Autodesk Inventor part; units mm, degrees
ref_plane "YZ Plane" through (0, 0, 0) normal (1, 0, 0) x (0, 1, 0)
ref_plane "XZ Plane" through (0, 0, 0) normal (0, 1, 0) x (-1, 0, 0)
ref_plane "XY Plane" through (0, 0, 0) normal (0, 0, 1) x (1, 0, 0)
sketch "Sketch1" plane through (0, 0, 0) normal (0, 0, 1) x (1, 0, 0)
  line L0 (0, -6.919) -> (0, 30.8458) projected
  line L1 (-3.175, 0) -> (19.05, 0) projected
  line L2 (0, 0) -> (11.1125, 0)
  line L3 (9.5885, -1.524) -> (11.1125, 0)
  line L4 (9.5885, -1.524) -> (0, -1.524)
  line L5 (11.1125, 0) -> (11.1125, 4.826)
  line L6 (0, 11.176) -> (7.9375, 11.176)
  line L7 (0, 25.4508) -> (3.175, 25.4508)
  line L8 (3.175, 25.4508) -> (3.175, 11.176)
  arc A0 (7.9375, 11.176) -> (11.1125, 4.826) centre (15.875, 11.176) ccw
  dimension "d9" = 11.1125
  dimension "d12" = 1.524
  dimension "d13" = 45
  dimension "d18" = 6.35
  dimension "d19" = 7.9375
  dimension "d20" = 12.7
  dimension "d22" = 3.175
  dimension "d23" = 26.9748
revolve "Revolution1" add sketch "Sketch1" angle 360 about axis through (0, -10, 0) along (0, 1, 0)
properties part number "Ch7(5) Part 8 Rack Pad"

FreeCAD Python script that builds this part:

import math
import FreeCAD as App
import Part
import Sketcher

V = App.Vector
Q = App.Units.Quantity

doc = App.newDocument("Part")
params = doc.addObject("Spreadsheet::Sheet", "Params")
for row, (alias, value) in enumerate([
    ("sketch1_radius", "0.3125 in"),
    ("sketch1_width", "0.125 in"),
    ("sketch1_height", "1.062 in"),
    ("revolution_angle", "360 deg"),
], start=1):
    params.set(f"A{row}", alias)
    params.set(f"B{row}", "=" + value)
    params.setAlias(f"B{row}", alias)

body = doc.addObject("PartDesign::Body", "Body")

sketch1 = body.newObject("Sketcher::SketchObject", "Sketch")
sketch1.AttachmentSupport = (doc.getObject("XY_Plane"), [""])
sketch1.MapMode = "FlatFace"
sketch1.addGeometry([
    Part.LineSegment(V(0, -1.5, 0), V(9.6, -1.5, 0)),
    Part.LineSegment(V(9.6, -1.5, 0), V(11.1, 0, 0)),
    Part.LineSegment(V(11.1, 0, 0), V(11.1, 4.8, 0)),
    Part.ArcOfCircle(Part.Circle(V(15.9, 11.2, 0), V(0, 0, 1), 7.9), math.radians(180), math.radians(233)),
    Part.LineSegment(V(7.9, 11.2, 0), V(3.2, 11.2, 0)),
    Part.LineSegment(V(3.2, 11.2, 0), V(3.2, 25.5, 0)),
    Part.LineSegment(V(3.2, 25.5, 0), V(0, 25.5, 0)),
    Part.LineSegment(V(0, 25.5, 0), V(0, -1.5, 0)),
], False)
sketch1.addConstraint([
    Sketcher.Constraint("Coincident", 0, 2, 1, 1),
    Sketcher.Constraint("Coincident", 1, 2, 2, 1),
    Sketcher.Constraint("Coincident", 2, 2, 3, 2),
    Sketcher.Constraint("Coincident", 3, 1, 4, 1),
    Sketcher.Constraint("Coincident", 4, 2, 5, 1),
    Sketcher.Constraint("Coincident", 5, 2, 6, 1),
    Sketcher.Constraint("Coincident", 6, 2, 7, 1),
    Sketcher.Constraint("Coincident", 7, 2, 0, 1),
    Sketcher.Constraint("Horizontal", 0),
    Sketcher.Constraint("Vertical", 2),
    Sketcher.Constraint("Horizontal", 4),
    Sketcher.Constraint("Vertical", 5),
    Sketcher.Constraint("Horizontal", 6),
    Sketcher.Constraint("Vertical", 7),
    Sketcher.Constraint("PointOnObject", 1, 2, -1),
    Sketcher.Constraint("PointOnObject", 6, 2, -2),
    Sketcher.Constraint("Angle", 1, Q("45 deg")),
    Sketcher.Constraint("Radius", 3, Q("0.3125 in")),
    Sketcher.Constraint("DistanceY", 0, 2, 3, 3, Q("0.5 in")),
    Sketcher.Constraint("DistanceY", 0, 2, 3, 1, Q("0.5 in")),
    Sketcher.Constraint("DistanceX", 4, 2, 3, 3, Q("0.5 in")),
    Sketcher.Constraint("DistanceX", 6, 2, 6, 1, Q("0.125 in")),
    Sketcher.Constraint("DistanceY", 7, 2, 7, 1, Q("1.062 in")),
    Sketcher.Constraint("DistanceY", 0, 2, -1, 1, Q("0.06 in")),
    Sketcher.Constraint("DistanceY", 0, 2, 2, 2, Q("0.25 in")),
])
sketch1.setExpression("Constraints[17]", "Params.sketch1_radius")
sketch1.setExpression("Constraints[21]", "Params.sketch1_width")
sketch1.setExpression("Constraints[22]", "Params.sketch1_height")
revolution = body.newObject("PartDesign::Revolution", "Revolution")
revolution.Profile = sketch1
revolution.ReferenceAxis = (sketch1, ["V_Axis"])
revolution.setExpression("Angle", "Params.revolution_angle")

doc.recompute()
